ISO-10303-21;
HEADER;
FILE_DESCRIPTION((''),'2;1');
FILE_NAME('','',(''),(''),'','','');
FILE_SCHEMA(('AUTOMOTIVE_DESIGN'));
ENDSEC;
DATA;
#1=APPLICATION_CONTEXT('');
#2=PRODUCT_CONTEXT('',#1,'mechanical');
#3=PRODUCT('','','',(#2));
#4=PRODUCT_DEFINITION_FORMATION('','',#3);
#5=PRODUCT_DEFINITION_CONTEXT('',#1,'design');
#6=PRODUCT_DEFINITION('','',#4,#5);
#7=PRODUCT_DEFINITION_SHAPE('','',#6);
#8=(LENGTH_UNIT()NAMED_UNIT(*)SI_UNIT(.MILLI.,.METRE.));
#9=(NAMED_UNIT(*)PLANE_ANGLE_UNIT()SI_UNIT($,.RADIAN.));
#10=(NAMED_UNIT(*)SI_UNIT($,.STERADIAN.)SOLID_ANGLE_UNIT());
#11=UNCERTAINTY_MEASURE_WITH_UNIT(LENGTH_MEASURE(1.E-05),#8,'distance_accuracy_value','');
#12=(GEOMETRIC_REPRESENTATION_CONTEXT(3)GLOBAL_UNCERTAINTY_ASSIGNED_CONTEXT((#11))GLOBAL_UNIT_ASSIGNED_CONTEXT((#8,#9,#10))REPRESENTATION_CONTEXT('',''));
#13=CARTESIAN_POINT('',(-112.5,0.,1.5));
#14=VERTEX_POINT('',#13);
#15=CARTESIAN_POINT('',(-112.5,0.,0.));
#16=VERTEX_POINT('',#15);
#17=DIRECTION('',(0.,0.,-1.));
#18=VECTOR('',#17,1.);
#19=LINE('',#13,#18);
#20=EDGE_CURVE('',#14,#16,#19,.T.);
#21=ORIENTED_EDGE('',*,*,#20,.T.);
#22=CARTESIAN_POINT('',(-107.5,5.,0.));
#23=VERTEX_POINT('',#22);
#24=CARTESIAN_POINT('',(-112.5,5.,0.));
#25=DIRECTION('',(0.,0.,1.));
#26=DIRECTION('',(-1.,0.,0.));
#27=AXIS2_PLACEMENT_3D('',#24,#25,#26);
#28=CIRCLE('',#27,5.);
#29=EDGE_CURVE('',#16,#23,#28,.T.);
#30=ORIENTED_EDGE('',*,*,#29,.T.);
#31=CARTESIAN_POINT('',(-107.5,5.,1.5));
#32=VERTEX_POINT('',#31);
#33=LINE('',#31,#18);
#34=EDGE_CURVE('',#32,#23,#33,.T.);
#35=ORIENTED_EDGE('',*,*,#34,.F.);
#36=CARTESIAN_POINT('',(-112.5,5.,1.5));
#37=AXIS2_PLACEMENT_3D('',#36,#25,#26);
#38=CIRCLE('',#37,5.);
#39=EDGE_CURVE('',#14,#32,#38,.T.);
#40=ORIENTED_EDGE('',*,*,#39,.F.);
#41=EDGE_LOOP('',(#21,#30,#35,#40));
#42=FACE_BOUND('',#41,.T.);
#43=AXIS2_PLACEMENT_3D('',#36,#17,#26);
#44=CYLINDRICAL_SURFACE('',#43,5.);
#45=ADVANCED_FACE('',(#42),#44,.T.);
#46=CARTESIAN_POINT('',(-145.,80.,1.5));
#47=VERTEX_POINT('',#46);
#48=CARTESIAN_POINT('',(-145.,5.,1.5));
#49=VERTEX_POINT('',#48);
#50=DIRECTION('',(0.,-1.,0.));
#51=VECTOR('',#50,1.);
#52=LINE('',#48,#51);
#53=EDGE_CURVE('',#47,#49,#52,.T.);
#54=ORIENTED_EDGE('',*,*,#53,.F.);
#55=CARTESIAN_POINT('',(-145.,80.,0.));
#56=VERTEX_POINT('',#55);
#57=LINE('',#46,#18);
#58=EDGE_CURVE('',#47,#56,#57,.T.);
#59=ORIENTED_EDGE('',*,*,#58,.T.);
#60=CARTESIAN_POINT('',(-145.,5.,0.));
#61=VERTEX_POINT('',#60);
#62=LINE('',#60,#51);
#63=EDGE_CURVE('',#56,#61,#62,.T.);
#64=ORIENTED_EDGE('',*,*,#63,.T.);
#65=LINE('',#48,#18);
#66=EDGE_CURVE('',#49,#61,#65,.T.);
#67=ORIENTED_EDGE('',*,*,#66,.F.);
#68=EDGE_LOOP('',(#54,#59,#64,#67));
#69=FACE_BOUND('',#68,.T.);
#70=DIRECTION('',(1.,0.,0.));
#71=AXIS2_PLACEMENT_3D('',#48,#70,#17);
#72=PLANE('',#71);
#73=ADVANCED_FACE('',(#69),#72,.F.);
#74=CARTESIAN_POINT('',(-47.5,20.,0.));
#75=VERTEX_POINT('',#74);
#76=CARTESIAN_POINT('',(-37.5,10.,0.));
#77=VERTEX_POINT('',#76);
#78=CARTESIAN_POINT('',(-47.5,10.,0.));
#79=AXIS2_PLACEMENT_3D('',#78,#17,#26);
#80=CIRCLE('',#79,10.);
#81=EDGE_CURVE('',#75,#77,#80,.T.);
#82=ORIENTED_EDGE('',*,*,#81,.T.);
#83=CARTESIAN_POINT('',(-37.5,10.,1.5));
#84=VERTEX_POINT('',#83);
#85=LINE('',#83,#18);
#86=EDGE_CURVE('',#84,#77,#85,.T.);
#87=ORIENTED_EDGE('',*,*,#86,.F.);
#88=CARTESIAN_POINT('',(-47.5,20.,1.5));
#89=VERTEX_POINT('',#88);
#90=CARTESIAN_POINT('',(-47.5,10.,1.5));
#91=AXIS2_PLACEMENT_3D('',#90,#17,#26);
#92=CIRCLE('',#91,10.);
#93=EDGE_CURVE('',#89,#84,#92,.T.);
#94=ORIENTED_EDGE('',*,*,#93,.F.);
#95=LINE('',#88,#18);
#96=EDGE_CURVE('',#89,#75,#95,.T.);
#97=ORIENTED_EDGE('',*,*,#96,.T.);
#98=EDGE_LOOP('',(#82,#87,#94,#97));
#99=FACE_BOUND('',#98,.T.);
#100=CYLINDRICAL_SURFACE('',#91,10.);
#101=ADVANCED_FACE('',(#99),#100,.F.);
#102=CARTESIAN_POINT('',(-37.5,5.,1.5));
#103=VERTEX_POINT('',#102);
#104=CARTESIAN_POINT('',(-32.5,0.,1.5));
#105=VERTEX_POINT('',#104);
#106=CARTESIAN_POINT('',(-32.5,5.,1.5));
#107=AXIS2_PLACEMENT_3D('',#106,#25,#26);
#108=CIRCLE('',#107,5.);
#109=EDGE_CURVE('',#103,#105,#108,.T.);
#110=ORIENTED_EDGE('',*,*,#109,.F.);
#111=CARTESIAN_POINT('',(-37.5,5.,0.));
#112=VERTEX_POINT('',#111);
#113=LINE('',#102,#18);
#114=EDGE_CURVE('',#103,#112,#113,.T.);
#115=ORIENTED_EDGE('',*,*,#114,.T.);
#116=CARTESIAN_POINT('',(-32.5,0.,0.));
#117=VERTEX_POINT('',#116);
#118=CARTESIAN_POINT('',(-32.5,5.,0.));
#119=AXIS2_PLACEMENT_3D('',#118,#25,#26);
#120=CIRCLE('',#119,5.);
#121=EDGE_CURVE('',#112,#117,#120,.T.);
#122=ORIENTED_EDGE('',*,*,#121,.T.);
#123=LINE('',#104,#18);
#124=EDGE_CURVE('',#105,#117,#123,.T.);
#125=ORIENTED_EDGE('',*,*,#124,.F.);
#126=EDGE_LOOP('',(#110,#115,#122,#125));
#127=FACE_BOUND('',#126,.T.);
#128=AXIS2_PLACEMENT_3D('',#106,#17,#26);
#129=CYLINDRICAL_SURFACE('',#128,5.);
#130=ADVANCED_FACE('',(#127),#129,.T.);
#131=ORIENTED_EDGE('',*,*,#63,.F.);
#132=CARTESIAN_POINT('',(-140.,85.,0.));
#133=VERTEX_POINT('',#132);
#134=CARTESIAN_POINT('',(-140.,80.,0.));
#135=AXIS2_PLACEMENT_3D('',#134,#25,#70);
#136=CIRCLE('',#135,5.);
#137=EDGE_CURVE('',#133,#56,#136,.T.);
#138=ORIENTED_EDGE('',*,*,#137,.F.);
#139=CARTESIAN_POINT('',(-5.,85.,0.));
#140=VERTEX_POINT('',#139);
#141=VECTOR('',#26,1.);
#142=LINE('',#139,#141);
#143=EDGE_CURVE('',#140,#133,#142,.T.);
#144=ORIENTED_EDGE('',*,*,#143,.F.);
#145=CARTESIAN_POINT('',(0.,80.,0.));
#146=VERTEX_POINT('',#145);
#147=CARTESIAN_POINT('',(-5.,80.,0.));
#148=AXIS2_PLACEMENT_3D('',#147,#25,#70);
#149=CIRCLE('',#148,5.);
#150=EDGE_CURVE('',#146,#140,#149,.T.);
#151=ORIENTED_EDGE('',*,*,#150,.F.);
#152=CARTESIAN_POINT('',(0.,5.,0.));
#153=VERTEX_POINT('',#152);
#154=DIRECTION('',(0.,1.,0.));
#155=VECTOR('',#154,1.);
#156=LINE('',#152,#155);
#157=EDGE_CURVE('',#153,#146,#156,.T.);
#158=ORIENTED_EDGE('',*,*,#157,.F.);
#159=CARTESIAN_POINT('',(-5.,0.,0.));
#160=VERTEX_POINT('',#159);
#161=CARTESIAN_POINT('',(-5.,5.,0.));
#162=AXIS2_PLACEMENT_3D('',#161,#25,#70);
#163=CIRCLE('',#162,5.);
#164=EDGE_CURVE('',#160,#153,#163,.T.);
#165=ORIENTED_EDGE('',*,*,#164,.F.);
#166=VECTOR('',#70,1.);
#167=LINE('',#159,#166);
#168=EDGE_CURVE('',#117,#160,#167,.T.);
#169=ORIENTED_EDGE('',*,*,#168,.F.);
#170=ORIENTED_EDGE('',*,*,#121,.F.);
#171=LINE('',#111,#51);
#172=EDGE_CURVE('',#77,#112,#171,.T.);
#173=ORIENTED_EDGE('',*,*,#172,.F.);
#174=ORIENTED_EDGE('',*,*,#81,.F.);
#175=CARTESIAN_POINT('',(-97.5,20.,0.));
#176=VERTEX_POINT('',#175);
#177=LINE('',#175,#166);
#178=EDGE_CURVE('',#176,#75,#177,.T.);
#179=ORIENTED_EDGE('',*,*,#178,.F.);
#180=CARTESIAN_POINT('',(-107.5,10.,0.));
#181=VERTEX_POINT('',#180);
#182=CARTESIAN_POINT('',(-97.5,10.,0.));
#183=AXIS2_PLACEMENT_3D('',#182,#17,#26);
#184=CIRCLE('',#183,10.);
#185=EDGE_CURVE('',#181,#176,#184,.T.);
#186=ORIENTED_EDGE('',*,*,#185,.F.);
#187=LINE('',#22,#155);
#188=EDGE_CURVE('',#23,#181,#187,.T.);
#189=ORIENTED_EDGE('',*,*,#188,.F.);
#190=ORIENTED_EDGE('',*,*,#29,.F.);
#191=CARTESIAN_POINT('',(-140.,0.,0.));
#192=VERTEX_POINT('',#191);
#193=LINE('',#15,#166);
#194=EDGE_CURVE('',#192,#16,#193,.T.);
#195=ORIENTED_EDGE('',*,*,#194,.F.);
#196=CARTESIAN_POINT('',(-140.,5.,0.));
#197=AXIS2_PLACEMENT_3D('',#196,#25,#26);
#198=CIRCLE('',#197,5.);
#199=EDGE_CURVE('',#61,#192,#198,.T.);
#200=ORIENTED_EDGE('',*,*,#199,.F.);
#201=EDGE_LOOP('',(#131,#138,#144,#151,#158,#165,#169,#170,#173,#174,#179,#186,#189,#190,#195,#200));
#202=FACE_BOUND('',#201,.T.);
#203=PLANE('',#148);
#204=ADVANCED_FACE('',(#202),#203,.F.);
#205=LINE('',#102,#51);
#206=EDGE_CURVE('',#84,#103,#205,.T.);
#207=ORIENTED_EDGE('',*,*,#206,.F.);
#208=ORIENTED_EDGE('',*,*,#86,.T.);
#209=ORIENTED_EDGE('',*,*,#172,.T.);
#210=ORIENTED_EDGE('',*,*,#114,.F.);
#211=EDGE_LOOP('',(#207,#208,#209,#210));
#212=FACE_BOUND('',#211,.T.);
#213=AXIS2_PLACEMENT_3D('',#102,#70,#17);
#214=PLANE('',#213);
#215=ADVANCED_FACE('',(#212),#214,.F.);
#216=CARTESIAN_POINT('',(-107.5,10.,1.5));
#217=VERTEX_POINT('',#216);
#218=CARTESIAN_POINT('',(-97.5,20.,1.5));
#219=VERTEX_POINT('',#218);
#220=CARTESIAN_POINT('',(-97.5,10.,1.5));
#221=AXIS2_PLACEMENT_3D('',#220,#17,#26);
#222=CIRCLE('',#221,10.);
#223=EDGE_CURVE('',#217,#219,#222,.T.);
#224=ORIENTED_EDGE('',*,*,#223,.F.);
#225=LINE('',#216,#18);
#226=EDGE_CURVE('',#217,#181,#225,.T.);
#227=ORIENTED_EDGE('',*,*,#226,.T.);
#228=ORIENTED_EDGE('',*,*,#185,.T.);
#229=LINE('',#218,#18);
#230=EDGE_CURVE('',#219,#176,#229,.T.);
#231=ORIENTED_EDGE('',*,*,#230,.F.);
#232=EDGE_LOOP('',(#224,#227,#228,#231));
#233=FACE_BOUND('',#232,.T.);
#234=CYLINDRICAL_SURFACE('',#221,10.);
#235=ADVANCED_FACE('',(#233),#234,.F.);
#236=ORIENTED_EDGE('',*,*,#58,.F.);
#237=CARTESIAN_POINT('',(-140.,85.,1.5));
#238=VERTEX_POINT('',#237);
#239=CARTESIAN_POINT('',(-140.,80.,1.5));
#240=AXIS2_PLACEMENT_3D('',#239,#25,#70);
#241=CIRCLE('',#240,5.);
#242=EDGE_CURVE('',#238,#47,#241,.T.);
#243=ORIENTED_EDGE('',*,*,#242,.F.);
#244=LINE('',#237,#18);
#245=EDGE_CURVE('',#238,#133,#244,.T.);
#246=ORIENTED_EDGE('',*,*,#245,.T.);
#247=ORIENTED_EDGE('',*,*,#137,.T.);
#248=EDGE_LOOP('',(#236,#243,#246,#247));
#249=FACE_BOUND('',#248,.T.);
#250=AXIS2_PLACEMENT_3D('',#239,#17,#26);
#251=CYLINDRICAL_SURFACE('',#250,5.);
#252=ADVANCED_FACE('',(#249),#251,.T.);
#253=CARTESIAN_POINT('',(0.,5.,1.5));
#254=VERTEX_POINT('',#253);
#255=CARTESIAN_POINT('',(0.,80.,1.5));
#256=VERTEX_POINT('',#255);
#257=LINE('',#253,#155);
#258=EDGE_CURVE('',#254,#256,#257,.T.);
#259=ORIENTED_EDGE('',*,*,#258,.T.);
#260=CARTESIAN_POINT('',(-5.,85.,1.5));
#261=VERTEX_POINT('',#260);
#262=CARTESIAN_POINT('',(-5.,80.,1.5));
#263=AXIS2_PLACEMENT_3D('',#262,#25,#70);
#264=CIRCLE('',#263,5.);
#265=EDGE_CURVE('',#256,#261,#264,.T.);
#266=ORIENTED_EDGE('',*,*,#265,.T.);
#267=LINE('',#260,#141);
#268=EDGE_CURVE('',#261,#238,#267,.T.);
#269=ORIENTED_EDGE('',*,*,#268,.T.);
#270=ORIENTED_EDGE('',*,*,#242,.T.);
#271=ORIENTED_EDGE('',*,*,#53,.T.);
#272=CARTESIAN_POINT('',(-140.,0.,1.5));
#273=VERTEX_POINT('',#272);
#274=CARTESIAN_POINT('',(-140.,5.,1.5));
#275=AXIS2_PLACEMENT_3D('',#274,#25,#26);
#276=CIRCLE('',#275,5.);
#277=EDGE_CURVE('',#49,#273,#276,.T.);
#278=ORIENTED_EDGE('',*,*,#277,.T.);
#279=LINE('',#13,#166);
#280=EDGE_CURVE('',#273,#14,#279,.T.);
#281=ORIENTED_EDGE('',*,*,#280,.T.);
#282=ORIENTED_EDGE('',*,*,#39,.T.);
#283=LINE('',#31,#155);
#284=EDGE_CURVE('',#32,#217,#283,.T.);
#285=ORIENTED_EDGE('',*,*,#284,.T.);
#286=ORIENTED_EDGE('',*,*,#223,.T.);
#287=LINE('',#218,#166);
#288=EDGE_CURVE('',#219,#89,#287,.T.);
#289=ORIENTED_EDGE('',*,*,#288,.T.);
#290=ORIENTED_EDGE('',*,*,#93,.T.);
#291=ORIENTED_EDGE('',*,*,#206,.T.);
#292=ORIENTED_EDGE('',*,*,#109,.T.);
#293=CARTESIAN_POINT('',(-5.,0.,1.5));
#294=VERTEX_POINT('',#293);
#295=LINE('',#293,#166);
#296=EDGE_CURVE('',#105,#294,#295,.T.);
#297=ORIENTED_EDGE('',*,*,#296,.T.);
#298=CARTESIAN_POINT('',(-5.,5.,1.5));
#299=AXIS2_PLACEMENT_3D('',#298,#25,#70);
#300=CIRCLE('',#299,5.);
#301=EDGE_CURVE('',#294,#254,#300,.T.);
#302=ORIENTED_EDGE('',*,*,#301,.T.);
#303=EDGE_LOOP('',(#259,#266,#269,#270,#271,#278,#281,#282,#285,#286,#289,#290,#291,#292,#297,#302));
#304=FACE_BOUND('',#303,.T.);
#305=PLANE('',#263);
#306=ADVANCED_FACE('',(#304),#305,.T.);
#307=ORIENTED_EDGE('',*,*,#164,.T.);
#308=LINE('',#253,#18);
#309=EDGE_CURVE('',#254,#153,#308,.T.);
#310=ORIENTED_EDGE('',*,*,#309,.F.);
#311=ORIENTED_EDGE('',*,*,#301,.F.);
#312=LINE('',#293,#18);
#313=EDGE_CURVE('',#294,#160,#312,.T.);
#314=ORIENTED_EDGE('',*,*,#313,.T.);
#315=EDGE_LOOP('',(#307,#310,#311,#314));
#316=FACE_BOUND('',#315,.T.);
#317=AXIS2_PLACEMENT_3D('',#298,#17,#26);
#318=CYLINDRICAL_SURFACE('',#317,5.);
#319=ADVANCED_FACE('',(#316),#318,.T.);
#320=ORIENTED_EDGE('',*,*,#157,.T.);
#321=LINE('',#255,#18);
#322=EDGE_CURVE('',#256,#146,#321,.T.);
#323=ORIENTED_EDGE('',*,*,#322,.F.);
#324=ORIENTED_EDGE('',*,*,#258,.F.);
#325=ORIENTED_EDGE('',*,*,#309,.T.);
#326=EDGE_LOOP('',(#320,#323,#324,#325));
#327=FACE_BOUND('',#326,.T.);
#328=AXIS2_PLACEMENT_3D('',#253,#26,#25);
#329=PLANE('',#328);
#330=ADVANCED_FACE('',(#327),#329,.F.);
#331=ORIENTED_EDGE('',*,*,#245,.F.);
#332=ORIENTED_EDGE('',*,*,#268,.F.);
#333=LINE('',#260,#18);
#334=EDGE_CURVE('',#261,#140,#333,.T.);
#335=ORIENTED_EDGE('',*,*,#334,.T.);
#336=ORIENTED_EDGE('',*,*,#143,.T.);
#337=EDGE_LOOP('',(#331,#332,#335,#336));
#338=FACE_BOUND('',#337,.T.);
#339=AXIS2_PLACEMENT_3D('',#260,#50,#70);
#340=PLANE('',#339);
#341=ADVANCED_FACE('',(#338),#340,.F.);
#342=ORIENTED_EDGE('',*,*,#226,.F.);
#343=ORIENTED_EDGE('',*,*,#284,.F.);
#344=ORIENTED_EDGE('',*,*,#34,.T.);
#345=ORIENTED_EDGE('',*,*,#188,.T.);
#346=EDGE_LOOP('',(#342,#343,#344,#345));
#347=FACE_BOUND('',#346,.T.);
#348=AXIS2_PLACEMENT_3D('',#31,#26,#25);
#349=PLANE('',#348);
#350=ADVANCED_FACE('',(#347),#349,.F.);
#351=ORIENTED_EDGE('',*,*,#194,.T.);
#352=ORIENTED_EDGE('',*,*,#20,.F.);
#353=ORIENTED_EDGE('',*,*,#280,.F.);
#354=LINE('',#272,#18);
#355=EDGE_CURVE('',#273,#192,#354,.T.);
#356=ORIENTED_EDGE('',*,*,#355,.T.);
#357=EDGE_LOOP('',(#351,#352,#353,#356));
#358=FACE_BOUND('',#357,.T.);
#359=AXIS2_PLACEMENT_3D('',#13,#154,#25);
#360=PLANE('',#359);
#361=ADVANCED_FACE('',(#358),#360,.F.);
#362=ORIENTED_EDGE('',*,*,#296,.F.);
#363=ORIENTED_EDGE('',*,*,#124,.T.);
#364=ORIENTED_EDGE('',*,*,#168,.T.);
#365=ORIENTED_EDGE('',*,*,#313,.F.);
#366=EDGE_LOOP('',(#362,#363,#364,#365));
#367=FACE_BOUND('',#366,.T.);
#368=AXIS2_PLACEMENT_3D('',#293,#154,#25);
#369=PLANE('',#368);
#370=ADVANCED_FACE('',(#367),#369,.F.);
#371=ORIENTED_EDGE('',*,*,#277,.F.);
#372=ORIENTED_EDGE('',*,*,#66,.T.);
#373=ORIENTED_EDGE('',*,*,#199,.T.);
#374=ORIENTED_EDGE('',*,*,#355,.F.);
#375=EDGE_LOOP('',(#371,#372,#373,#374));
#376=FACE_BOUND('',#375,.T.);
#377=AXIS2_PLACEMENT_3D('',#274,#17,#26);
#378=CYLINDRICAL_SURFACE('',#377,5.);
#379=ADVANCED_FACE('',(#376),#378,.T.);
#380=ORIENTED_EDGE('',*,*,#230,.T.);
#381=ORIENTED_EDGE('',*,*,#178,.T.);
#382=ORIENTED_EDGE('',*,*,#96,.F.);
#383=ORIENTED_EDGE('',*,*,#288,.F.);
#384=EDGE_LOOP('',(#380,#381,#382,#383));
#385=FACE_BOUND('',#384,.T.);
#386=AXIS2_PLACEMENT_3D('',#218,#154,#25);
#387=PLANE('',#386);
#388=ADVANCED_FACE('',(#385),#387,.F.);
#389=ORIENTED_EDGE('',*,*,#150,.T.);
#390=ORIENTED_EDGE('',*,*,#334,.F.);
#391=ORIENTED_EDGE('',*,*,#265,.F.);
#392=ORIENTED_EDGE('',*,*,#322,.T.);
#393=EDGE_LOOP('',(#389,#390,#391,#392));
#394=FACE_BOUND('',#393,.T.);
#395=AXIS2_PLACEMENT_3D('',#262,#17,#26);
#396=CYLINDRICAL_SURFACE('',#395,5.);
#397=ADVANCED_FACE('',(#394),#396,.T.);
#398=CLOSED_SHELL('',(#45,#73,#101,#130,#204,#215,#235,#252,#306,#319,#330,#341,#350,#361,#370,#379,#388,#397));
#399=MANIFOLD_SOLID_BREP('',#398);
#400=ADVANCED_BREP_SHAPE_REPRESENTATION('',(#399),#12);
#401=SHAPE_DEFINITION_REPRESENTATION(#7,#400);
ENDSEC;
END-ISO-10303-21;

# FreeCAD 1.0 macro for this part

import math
import FreeCAD as App
import Part
import Sketcher

doc = App.newDocument("Part")
params = doc.addObject("Spreadsheet::Sheet", "Params")
for row, (alias, value) in enumerate([
    ("sketch1_radius", "5 mm"),
    ("sketch1_radius2", "10 mm"),
    ("sketch1_width", "135 mm"),
    ("sketch1_width2", "50 mm"),
    ("sketch1_height", "75 mm"),
    ("pad1_length", "1.5 mm"),
], start=1):
    params.set(f"A{row}", alias)
    params.set(f"B{row}", "=" + value)
    params.setAlias(f"B{row}", alias)

body = doc.addObject("PartDesign::Body", "Body")

# Sketch on XY plane
sketch1 = body.newObject("Sketcher::SketchObject", "Sketch")
sketch1.AttachmentSupport = (doc.getObject("XY_Plane"), [""])
sketch1.MapMode = "FlatFace"
sketch1.addGeometry([
    Part.LineSegment(App.Vector(-32, 0, 0), App.Vector(-5, 0, 0)),  # 0
    Part.ArcOfCircle(Part.Circle(App.Vector(-5, 5, 0), App.Vector(0, 0, 1), 5), math.radians(-90), math.radians(0)),  # 1
    Part.LineSegment(App.Vector(0, 5, 0), App.Vector(0, 80, 0)),  # 2
    Part.ArcOfCircle(Part.Circle(App.Vector(-5, 80, 0), App.Vector(0, 0, 1), 5), math.radians(0), math.radians(90)),  # 3
    Part.LineSegment(App.Vector(-5, 85, 0), App.Vector(-140, 85, 0)),  # 4
    Part.ArcOfCircle(Part.Circle(App.Vector(-140, 80, 0), App.Vector(0, 0, 1), 5), math.radians(90), math.radians(180)),  # 5
    Part.LineSegment(App.Vector(-145, 80, 0), App.Vector(-145, 5, 0)),  # 6
    Part.ArcOfCircle(Part.Circle(App.Vector(-140, 5, 0), App.Vector(0, 0, 1), 5), math.radians(180), math.radians(270)),  # 7
    Part.LineSegment(App.Vector(-140, 0, 0), App.Vector(-112, 0, 0)),  # 8
    Part.ArcOfCircle(Part.Circle(App.Vector(-112, 5, 0), App.Vector(0, 0, 1), 5), math.radians(-90), math.radians(0)),  # 9
    Part.LineSegment(App.Vector(-108, 5, 0), App.Vector(-108, 10, 0)),  # 10
    Part.ArcOfCircle(Part.Circle(App.Vector(-98, 10, 0), App.Vector(0, 0, 1), 10), math.radians(90), math.radians(180)),  # 11
    Part.LineSegment(App.Vector(-98, 20, 0), App.Vector(-48, 20, 0)),  # 12
    Part.ArcOfCircle(Part.Circle(App.Vector(-48, 10, 0), App.Vector(0, 0, 1), 10), math.radians(0), math.radians(90)),  # 13
    Part.LineSegment(App.Vector(-38, 10, 0), App.Vector(-38, 5, 0)),  # 14
    Part.ArcOfCircle(Part.Circle(App.Vector(-32, 5, 0), App.Vector(0, 0, 1), 5), math.radians(180), math.radians(270)),  # 15
], False)
sketch1.addConstraint([
    Sketcher.Constraint("Tangent", 0, 2, 1, 1),
    Sketcher.Constraint("Tangent", 1, 2, 2, 1),
    Sketcher.Constraint("Tangent", 2, 2, 3, 1),
    Sketcher.Constraint("Tangent", 3, 2, 4, 1),
    Sketcher.Constraint("Tangent", 4, 2, 5, 1),
    Sketcher.Constraint("Tangent", 5, 2, 6, 1),
    Sketcher.Constraint("Tangent", 6, 2, 7, 1),
    Sketcher.Constraint("Tangent", 7, 2, 8, 1),
    Sketcher.Constraint("Tangent", 8, 2, 9, 1),
    Sketcher.Constraint("Tangent", 9, 2, 10, 1),
    Sketcher.Constraint("Tangent", 10, 2, 11, 2),
    Sketcher.Constraint("Tangent", 11, 1, 12, 1),
    Sketcher.Constraint("Tangent", 12, 2, 13, 2),
    Sketcher.Constraint("Tangent", 13, 1, 14, 1),
    Sketcher.Constraint("Tangent", 14, 2, 15, 1),
    Sketcher.Constraint("Tangent", 15, 2, 0, 1),
    Sketcher.Constraint("Horizontal", 0),
    Sketcher.Constraint("Vertical", 2),
    Sketcher.Constraint("Horizontal", 4),
    Sketcher.Constraint("Vertical", 6),
    Sketcher.Constraint("Horizontal", 8),
    Sketcher.Constraint("Vertical", 10),
    Sketcher.Constraint("Horizontal", 12),
    Sketcher.Constraint("Vertical", 14),
    Sketcher.Constraint("Equal", 1, 3),
    Sketcher.Constraint("Equal", 3, 5),
    Sketcher.Constraint("Equal", 5, 7),
    Sketcher.Constraint("Equal", 7, 9),
    Sketcher.Constraint("Equal", 11, 13),
    Sketcher.Constraint("Equal", 9, 15),
    Sketcher.Constraint("PointOnObject", 0, 2, -1),
    Sketcher.Constraint("PointOnObject", 1, 2, -2),
    Sketcher.Constraint("PointOnObject", 7, 2, -1),
    Sketcher.Constraint("Equal", 0, 8),
    Sketcher.Constraint("Radius", 1, 5.0),
    Sketcher.Constraint("Radius", 11, 10.0),
    Sketcher.Constraint("DistanceX", 4, 2, 4, 1, 135.0),
    Sketcher.Constraint("DistanceX", 12, 1, 12, 2, 50.0),
    Sketcher.Constraint("DistanceY", 2, 1, 2, 2, 75.0),
    Sketcher.Constraint("DistanceY", 10, 1, 10, 2, 5.0),
])
sketch1.setExpression("Constraints[34]", "Params.sketch1_radius")
sketch1.setExpression("Constraints[35]", "Params.sketch1_radius2")
sketch1.setExpression("Constraints[36]", "Params.sketch1_width")
sketch1.setExpression("Constraints[37]", "Params.sketch1_width2")
sketch1.setExpression("Constraints[38]", "Params.sketch1_height")
pad1 = body.newObject("PartDesign::Pad", "Pad")
pad1.Profile = sketch1
pad1.setExpression("Length", "Params.pad1_length")

doc.recompute()
